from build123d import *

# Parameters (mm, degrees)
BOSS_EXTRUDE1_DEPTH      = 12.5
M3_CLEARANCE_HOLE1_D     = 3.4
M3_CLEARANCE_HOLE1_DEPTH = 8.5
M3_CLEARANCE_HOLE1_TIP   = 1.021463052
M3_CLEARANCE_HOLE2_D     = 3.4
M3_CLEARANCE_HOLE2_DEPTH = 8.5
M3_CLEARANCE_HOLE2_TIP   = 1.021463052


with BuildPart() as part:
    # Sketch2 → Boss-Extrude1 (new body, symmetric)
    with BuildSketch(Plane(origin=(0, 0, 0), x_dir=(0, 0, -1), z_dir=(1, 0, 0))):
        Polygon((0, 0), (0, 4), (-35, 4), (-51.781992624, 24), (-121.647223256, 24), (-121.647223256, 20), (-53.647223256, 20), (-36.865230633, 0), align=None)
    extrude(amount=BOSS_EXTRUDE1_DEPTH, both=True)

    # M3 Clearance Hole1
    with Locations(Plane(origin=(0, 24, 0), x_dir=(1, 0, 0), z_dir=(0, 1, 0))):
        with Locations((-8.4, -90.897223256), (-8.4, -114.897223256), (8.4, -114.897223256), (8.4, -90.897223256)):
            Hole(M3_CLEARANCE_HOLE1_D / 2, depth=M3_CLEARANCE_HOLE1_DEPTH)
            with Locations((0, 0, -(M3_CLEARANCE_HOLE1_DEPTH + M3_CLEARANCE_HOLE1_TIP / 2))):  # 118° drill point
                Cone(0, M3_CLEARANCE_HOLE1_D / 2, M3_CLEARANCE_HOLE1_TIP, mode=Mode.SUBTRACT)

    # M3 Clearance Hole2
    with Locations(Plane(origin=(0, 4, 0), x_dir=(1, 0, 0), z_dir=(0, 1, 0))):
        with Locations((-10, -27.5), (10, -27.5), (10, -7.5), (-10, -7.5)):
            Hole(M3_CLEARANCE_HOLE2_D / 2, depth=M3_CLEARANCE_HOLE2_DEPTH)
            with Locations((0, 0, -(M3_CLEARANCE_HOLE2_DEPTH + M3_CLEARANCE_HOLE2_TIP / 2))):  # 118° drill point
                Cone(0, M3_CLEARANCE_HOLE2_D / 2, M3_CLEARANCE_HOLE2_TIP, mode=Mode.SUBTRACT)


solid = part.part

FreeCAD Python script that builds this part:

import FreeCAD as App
import Part
import Sketcher

V = App.Vector
Q = App.Units.Quantity


def add_polygon(sketch, points):
    """Adds a closed chain of lines whose ends are joined by coincident constraints."""
    first, n = sketch.GeometryCount, len(points)
    for a, b in zip(points, points[1:] + points[:1]):
        sketch.addGeometry(Part.LineSegment(App.Vector(*a, 0), App.Vector(*b, 0)), False)
    for i in range(n):
        sketch.addConstraint(Sketcher.Constraint("Coincident", first + i, 2, first + (i + 1) % n, 1))

doc = App.newDocument("Part")
body = doc.addObject("PartDesign::Body", "Body")

# Sketch on YZ plane
sketch1 = doc.addObject("Sketcher::SketchObject", "Sketch")
body.addObject(sketch1)
sketch1.AttachmentSupport = (doc.YZ_Plane, [""])
sketch1.MapMode = "FlatFace"
add_polygon(sketch1, [(0, 0), (4, 0), (4, 35), (24, 51.8), (24, 121.6), (20, 121.6), (20, 53.6), (0, 36.9)])  # lines 0-7
sketch1.addConstraint(Sketcher.Constraint("Horizontal", 0))
sketch1.addConstraint(Sketcher.Constraint("Vertical", 1))
sketch1.addConstraint(Sketcher.Constraint("Vertical", 3))
sketch1.addConstraint(Sketcher.Constraint("Horizontal", 4))
sketch1.addConstraint(Sketcher.Constraint("Vertical", 5))
sketch1.addConstraint(Sketcher.Constraint("Vertical", 7))
sketch1.addConstraint(Sketcher.Constraint("Coincident", 7, 2, -1, 1))
sketch1.addConstraint(Sketcher.Constraint("Parallel", 2, 6))
sketch1.addConstraint(Sketcher.Constraint("Equal", 0, 4))
sketch1.addConstraint(Sketcher.Constraint("DistanceX", 0, 1, 0, 2, 4.0))
sketch1.addConstraint(Sketcher.Constraint("DistanceY", 1, 1, 1, 2, 35.0))
sketch1.addConstraint(Sketcher.Constraint("DistanceY", 5, 2, 5, 1, 68.0))
sketch1.addConstraint(Sketcher.Constraint("Angle", 2, Q("40 deg")))
sketch1.addConstraint(Sketcher.Constraint("DistanceX", -1, 1, 2, 2, 24.0))
sketch1.addConstraint(Sketcher.Constraint("DistanceY", 3, 1, 3, 2, 69.865231))
pad1 = doc.addObject("PartDesign::Pad", "Pad")
body.addObject(pad1)
pad1.Profile = sketch1
pad1.Length = 25
pad1.Midplane = True

# Sketch on XZ plane
sketch2 = doc.addObject("Sketcher::SketchObject", "Sketch001")
body.addObject(sketch2)
sketch2.AttachmentSupport = (doc.XZ_Plane, [""])
sketch2.MapMode = "FlatFace"
sketch2.AttachmentOffset = App.Placement(V(0, 0, -24), App.Rotation())
sketch2.addGeometry(Part.Circle(V(-8.4, 90.9, 0), V(0, 0, 1), 1.7), False)
sketch2.addGeometry(Part.Circle(V(-8.4, 114.9, 0), V(0, 0, 1), 1.7), False)
sketch2.addGeometry(Part.Circle(V(8.4, 114.9, 0), V(0, 0, 1), 1.7), False)
sketch2.addGeometry(Part.Circle(V(8.4, 90.9, 0), V(0, 0, 1), 1.7), False)
sketch2.addConstraint(Sketcher.Constraint("Equal", 0, 1))
sketch2.addConstraint(Sketcher.Constraint("Equal", 1, 2))
sketch2.addConstraint(Sketcher.Constraint("Equal", 2, 3))
sketch2.addConstraint(Sketcher.Constraint("Symmetric", 1, 3, 2, 3, -2))
sketch2.addConstraint(Sketcher.Constraint("Symmetric", 0, 3, 3, 3, -2))
sketch2.addConstraint(Sketcher.Constraint("Vertical", 0, 3, 1, 3))
sketch2.addConstraint(Sketcher.Constraint("Diameter", 0, 3.4))
sketch2.addConstraint(Sketcher.Constraint("DistanceY", 0, 3, 1, 3, 24.0))
sketch2.addConstraint(Sketcher.Constraint("DistanceX", 0, 3, -1, 1, 8.4))
sketch2.addConstraint(Sketcher.Constraint("DistanceY", -1, 1, 0, 3, 90.897223))
doc.recompute()
hole = doc.addObject("PartDesign::Hole", "Hole")
body.addObject(hole)
hole.Profile = sketch2
hole.ThreadType = "None"
hole.Diameter = 3.4
hole.DepthType = "Dimension"
hole.Depth = 8.5
hole.DrillPoint = "Angled"
hole.DrillPointAngle = 118
hole.Reversed = True

# Sketch on XZ plane
sketch3 = doc.addObject("Sketcher::SketchObject", "Sketch002")
body.addObject(sketch3)
sketch3.AttachmentSupport = (doc.XZ_Plane, [""])
sketch3.MapMode = "FlatFace"
sketch3.AttachmentOffset = App.Placement(V(0, 0, -4), App.Rotation())
sketch3.addGeometry(Part.Circle(V(-10, 27.5, 0), V(0, 0, 1), 1.7), False)
sketch3.addGeometry(Part.Circle(V(10, 27.5, 0), V(0, 0, 1), 1.7), False)
sketch3.addGeometry(Part.Circle(V(10, 7.5, 0), V(0, 0, 1), 1.7), False)
sketch3.addGeometry(Part.Circle(V(-10, 7.5, 0), V(0, 0, 1), 1.7), False)
sketch3.addConstraint(Sketcher.Constraint("Equal", 0, 1))
sketch3.addConstraint(Sketcher.Constraint("Equal", 1, 2))
sketch3.addConstraint(Sketcher.Constraint("Equal", 2, 3))
sketch3.addConstraint(Sketcher.Constraint("Symmetric", 0, 3, 1, 3, -2))
sketch3.addConstraint(Sketcher.Constraint("Symmetric", 2, 3, 3, 3, -2))
sketch3.addConstraint(Sketcher.Constraint("Vertical", 1, 3, 2, 3))
sketch3.addConstraint(Sketcher.Constraint("Diameter", 0, 3.4))
sketch3.addConstraint(Sketcher.Constraint("DistanceX", 0, 3, -1, 1, 10.0))
sketch3.addConstraint(Sketcher.Constraint("DistanceY", 2, 3, 1, 3, 20.0))
sketch3.addConstraint(Sketcher.Constraint("DistanceY", -1, 1, 0, 3, 27.5))
doc.recompute()
hole2 = doc.addObject("PartDesign::Hole", "Hole001")
body.addObject(hole2)
hole2.Profile = sketch3
hole2.ThreadType = "None"
hole2.Diameter = 3.4
hole2.DepthType = "Dimension"
hole2.Depth = 8.5
hole2.DrillPoint = "Angled"
hole2.DrillPointAngle = 118
hole2.Reversed = True

doc.recompute()
